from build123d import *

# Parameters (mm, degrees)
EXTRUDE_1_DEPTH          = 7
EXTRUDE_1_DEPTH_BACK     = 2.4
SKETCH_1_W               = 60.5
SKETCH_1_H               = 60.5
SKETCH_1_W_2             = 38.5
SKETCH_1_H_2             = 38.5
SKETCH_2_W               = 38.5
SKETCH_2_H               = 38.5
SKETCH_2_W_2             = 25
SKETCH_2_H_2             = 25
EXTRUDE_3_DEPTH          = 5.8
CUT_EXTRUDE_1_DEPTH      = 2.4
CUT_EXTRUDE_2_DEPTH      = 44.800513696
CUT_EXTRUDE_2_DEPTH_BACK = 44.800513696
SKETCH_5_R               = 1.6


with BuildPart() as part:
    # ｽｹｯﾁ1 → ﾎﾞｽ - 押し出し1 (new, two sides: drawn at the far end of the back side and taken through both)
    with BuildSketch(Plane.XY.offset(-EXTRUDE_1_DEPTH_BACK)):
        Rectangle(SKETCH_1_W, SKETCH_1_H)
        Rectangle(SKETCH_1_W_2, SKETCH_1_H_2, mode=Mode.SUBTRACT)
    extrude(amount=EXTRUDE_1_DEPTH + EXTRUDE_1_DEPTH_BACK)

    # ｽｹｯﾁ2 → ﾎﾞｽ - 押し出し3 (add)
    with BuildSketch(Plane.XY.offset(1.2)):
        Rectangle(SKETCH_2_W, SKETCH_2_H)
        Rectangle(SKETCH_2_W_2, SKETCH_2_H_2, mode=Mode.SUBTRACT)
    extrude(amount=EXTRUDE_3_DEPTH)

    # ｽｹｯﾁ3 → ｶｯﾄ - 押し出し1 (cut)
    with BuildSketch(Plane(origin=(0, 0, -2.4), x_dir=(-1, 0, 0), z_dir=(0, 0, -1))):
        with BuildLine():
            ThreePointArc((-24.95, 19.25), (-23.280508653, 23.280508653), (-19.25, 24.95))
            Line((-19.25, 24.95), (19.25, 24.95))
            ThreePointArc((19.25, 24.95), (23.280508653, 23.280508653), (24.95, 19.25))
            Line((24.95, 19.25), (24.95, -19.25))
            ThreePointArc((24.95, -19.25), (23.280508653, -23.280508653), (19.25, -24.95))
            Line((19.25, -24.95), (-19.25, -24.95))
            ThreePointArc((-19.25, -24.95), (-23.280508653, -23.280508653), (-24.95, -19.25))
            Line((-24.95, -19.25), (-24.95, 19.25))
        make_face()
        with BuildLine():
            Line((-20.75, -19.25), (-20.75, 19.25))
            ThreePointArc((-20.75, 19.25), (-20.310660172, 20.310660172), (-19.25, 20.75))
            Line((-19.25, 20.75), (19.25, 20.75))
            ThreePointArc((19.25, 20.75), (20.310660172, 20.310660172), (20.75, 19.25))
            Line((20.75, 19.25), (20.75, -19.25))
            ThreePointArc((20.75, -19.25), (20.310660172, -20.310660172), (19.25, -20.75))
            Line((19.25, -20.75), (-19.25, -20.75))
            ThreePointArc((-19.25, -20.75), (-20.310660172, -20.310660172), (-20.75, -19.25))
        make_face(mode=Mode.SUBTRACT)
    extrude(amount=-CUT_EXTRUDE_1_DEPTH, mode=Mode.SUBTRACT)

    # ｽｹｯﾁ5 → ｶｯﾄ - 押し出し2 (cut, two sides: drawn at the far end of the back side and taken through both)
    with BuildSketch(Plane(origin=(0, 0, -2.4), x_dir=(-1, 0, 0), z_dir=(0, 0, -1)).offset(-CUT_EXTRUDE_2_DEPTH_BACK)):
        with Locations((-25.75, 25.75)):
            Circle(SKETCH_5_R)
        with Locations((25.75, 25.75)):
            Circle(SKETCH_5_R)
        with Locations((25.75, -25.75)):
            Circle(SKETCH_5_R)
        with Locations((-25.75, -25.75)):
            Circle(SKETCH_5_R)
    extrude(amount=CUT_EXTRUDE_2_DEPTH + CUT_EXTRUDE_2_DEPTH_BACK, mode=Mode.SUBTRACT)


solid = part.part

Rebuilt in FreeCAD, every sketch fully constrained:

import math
import FreeCAD as App
import Part
import Sketcher

V = App.Vector
Q = App.Units.Quantity


def add_polygon(sketch, points):
    """Adds a closed chain of lines whose ends are joined by coincident constraints."""
    first, n = sketch.GeometryCount, len(points)
    for a, b in zip(points, points[1:] + points[:1]):
        sketch.addGeometry(Part.LineSegment(App.Vector(*a, 0), App.Vector(*b, 0)), False)
    for i in range(n):
        sketch.addConstraint(Sketcher.Constraint("Coincident", first + i, 2, first + (i + 1) % n, 1))

doc = App.newDocument("Part")
body = doc.addObject("PartDesign::Body", "Body")

sketch1 = body.newObject("Sketcher::SketchObject", "Sketch")
sketch1.AttachmentSupport = (doc.getObject("XY_Plane"), [""])
sketch1.MapMode = "FlatFace"
add_polygon(sketch1, [(-30, 30), (-30, -30), (30, -30), (30, 30)])
add_polygon(sketch1, [(19, -19), (-19, -19), (-19, 19), (19, 19)])
sketch1.addConstraint([
    Sketcher.Constraint("Vertical", 0),
    Sketcher.Constraint("Horizontal", 1),
    Sketcher.Constraint("Vertical", 2),
    Sketcher.Constraint("Horizontal", 3),
    Sketcher.Constraint("Horizontal", 4),
    Sketcher.Constraint("Vertical", 5),
    Sketcher.Constraint("Horizontal", 6),
    Sketcher.Constraint("Vertical", 7),
    Sketcher.Constraint("Symmetric", 0, 2, 2, 2, -1, 1),
    Sketcher.Constraint("Symmetric", 4, 2, 6, 2, -1, 1),
    Sketcher.Constraint("Equal", 3, 0),
    Sketcher.Constraint("Equal", 6, 5),
    Sketcher.Constraint("DistanceX", 1, 1, 1, 2, Q("60.5 mm")),
    Sketcher.Constraint("DistanceX", 4, 2, 4, 1, Q("38.5 mm")),
])
pad1 = body.newObject("PartDesign::Pad", "Pad")
pad1.Profile = sketch1
pad1.Type = "TwoLengths"
pad1.Length = 7
pad1.Length2 = 2.4

sketch2 = body.newObject("Sketcher::SketchObject", "Sketch001")
sketch2.AttachmentSupport = (doc.getObject("XY_Plane"), [""])
sketch2.MapMode = "FlatFace"
sketch2.AttachmentOffset = App.Placement(V(0, 0, 1.2), App.Rotation())
add_polygon(sketch2, [(-19, 19), (-19, -19), (19, -19), (19, 19)])
add_polygon(sketch2, [(12, -12), (-12, -12), (-12, 12), (12, 12)])
sketch2.addConstraint([
    Sketcher.Constraint("Vertical", 0),
    Sketcher.Constraint("Horizontal", 1),
    Sketcher.Constraint("Vertical", 2),
    Sketcher.Constraint("Horizontal", 3),
    Sketcher.Constraint("Horizontal", 4),
    Sketcher.Constraint("Vertical", 5),
    Sketcher.Constraint("Horizontal", 6),
    Sketcher.Constraint("Vertical", 7),
    Sketcher.Constraint("Symmetric", 0, 2, 2, 2, -1, 1),
    Sketcher.Constraint("Symmetric", 4, 2, 6, 2, -1, 1),
    Sketcher.Constraint("Equal", 3, 0),
    Sketcher.Constraint("Equal", 6, 5),
    Sketcher.Constraint("DistanceX", 4, 2, 4, 1, Q("25 mm")),
    Sketcher.Constraint("DistanceX", 1, 1, 1, 2, Q("38.5 mm")),
])
pad2 = body.newObject("PartDesign::Pad", "Pad001")
pad2.Profile = sketch2
pad2.Length = 5.8

sketch3 = body.newObject("Sketcher::SketchObject", "Sketch002")
sketch3.AttachmentSupport = (doc.getObject("XY_Plane"), [""])
sketch3.MapMode = "FlatFace"
sketch3.AttachmentOffset = App.Placement(V(0, 0, -2.4), App.Rotation())
sketch3.addGeometry([
    Part.ArcOfCircle(Part.Circle(V(19.3, 19.3, 0), V(0, 0, 1), 5.7), math.radians(0), math.radians(90)),
    Part.LineSegment(V(24.9, 19.2, 0), V(24.9, -19.2, 0)),
    Part.ArcOfCircle(Part.Circle(V(19.3, -19.3, 0), V(0, 0, 1), 5.7), math.radians(-90), math.radians(0)),
    Part.LineSegment(V(19.2, -24.9, 0), V(-19.2, -24.9, 0)),
    Part.ArcOfCircle(Part.Circle(V(-19.3, -19.3, 0), V(0, 0, 1), 5.7), math.radians(180), math.radians(270)),
    Part.LineSegment(V(-24.9, -19.2, 0), V(-24.9, 19.2, 0)),
    Part.ArcOfCircle(Part.Circle(V(-19.3, 19.3, 0), V(0, 0, 1), 5.7), math.radians(90), math.radians(180)),
    Part.LineSegment(V(-19.2, 24.9, 0), V(19.2, 24.9, 0)),
    Part.LineSegment(V(20.8, -19.2, 0), V(20.8, 19.2, 0)),
    Part.ArcOfCircle(Part.Circle(V(19.3, 19.3, 0), V(0, 0, 1), 1.5), math.radians(0), math.radians(90)),
    Part.LineSegment(V(19.2, 20.8, 0), V(-19.2, 20.8, 0)),
    Part.ArcOfCircle(Part.Circle(V(-19.3, 19.3, 0), V(0, 0, 1), 1.5), math.radians(90), math.radians(180)),
    Part.LineSegment(V(-20.8, 19.2, 0), V(-20.8, -19.2, 0)),
    Part.ArcOfCircle(Part.Circle(V(-19.3, -19.3, 0), V(0, 0, 1), 1.5), math.radians(180), math.radians(270)),
    Part.LineSegment(V(-19.2, -20.8, 0), V(19.2, -20.8, 0)),
    Part.ArcOfCircle(Part.Circle(V(19.3, -19.3, 0), V(0, 0, 1), 1.5), math.radians(-90), math.radians(0)),
], False)
sketch3.addConstraint([
    Sketcher.Constraint("Tangent", 0, 1, 1, 1),
    Sketcher.Constraint("Tangent", 1, 2, 2, 2),
    Sketcher.Constraint("Tangent", 2, 1, 3, 1),
    Sketcher.Constraint("Tangent", 3, 2, 4, 2),
    Sketcher.Constraint("Tangent", 4, 1, 5, 1),
    Sketcher.Constraint("Tangent", 5, 2, 6, 2),
    Sketcher.Constraint("Tangent", 6, 1, 7, 1),
    Sketcher.Constraint("Tangent", 7, 2, 0, 2),
    Sketcher.Constraint("Tangent", 8, 2, 9, 1),
    Sketcher.Constraint("Tangent", 9, 2, 10, 1),
    Sketcher.Constraint("Tangent", 10, 2, 11, 1),
    Sketcher.Constraint("Tangent", 11, 2, 12, 1),
    Sketcher.Constraint("Tangent", 12, 2, 13, 1),
    Sketcher.Constraint("Tangent", 13, 2, 14, 1),
    Sketcher.Constraint("Tangent", 14, 2, 15, 1),
    Sketcher.Constraint("Tangent", 15, 2, 8, 1),
    Sketcher.Constraint("Vertical", 1),
    Sketcher.Constraint("Horizontal", 3),
    Sketcher.Constraint("Vertical", 5),
    Sketcher.Constraint("Horizontal", 7),
    Sketcher.Constraint("Vertical", 8),
    Sketcher.Constraint("Horizontal", 10),
    Sketcher.Constraint("Vertical", 12),
    Sketcher.Constraint("Horizontal", 14),
    Sketcher.Constraint("Coincident", 9, 3, 0, 3),
    Sketcher.Constraint("Coincident", 11, 3, 6, 3),
    Sketcher.Constraint("Coincident", 13, 3, 4, 3),
    Sketcher.Constraint("Equal", 0, 2),
    Sketcher.Constraint("Equal", 2, 4),
    Sketcher.Constraint("Equal", 4, 6),
    Sketcher.Constraint("Equal", 13, 15),
    Sketcher.Constraint("Symmetric", 0, 3, 4, 3, -1, 1),
    Sketcher.Constraint("Equal", 14, 1),
    Sketcher.Constraint("Radius", 0, Q("5.7 mm")),
    Sketcher.Constraint("Radius", 9, Q("1.5 mm")),
    Sketcher.Constraint("DistanceX", 3, 2, 3, 1, Q("38.5 mm")),
])
pocket1 = body.newObject("PartDesign::Pocket", "Pocket")
pocket1.Profile = sketch3
pocket1.Length = 2.4
pocket1.Reversed = True

sketch4 = body.newObject("Sketcher::SketchObject", "Sketch003")
sketch4.AttachmentSupport = (doc.getObject("XY_Plane"), [""])
sketch4.MapMode = "FlatFace"
sketch4.AttachmentOffset = App.Placement(V(0, 0, -2.4), App.Rotation())
sketch4.addGeometry([
    Part.Circle(V(25.8, 25.8, 0), V(0, 0, 1), 1.6),
    Part.Circle(V(-25.8, 25.8, 0), V(0, 0, 1), 1.6),
    Part.Circle(V(-25.8, -25.8, 0), V(0, 0, 1), 1.6),
    Part.Circle(V(25.8, -25.8, 0), V(0, 0, 1), 1.6),
], False)
sketch4.addConstraint([
    Sketcher.Constraint("Equal", 0, 1),
    Sketcher.Constraint("Equal", 1, 2),
    Sketcher.Constraint("Equal", 2, 3),
    Sketcher.Constraint("Symmetric", 0, 3, 2, 3, -1, 1),
    Sketcher.Constraint("Symmetric", 1, 3, 3, 3, -1, 1),
    Sketcher.Constraint("Symmetric", 0, 3, 1, 3, -2),
    Sketcher.Constraint("Diameter", 0, Q("3.2 mm")),
    Sketcher.Constraint("DistanceX", 1, 3, 0, 3, Q("51.5 mm")),
    Sketcher.Constraint("DistanceY", 2, 3, 1, 3, Q("51.5 mm")),
])
pocket2 = body.newObject("PartDesign::Pocket", "Pocket001")
pocket2.Profile = sketch4
pocket2.Type = "ThroughAll"
pocket2.Midplane = True

doc.recompute()
